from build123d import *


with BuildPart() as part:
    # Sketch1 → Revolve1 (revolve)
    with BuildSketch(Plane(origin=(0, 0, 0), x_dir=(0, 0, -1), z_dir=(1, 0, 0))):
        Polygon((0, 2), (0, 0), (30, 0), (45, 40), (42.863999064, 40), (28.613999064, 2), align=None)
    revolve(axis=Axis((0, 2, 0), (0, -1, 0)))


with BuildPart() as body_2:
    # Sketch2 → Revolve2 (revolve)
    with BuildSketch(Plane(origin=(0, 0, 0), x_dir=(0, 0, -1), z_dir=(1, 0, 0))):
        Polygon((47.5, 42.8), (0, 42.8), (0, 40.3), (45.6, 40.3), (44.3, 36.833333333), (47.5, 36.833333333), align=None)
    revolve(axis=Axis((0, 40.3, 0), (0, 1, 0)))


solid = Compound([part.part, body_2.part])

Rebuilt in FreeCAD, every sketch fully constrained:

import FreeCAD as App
import Part
import Sketcher
from FreeCAD import Vector
Q = App.Units.Quantity


def add_polygon(sketch, points):
    """Adds a closed chain of lines whose ends are joined by coincident constraints."""
    first, n = sketch.GeometryCount, len(points)
    for a, b in zip(points, points[1:] + points[:1]):
        sketch.addGeometry(Part.LineSegment(App.Vector(*a, 0), App.Vector(*b, 0)), False)
    for i in range(n):
        sketch.addConstraint(Sketcher.Constraint("Coincident", first + i, 2, first + (i + 1) % n, 1))

doc = App.newDocument("Part")
body = doc.addObject("PartDesign::Body", "Body")

# Sketch on YZ plane
sketch1 = body.newObject("Sketcher::SketchObject", "Sketch")
sketch1.AttachmentSupport = (doc.getObject("YZ_Plane"), [""])
sketch1.MapMode = "FlatFace"
add_polygon(sketch1, [(2, 0), (0, 0), (0, -30), (40, -45), (40, -42.863999), (2, -28.613999)])  # lines 0-5
sketch1.addConstraint([
    Sketcher.Constraint("Horizontal", 0),
    Sketcher.Constraint("Vertical", 1),
    Sketcher.Constraint("Vertical", 3),
    Sketcher.Constraint("Vertical", 5),
    Sketcher.Constraint("Coincident", 0, 2, -1, 1),
    Sketcher.Constraint("Parallel", 2, 4),
    Sketcher.Constraint("DistanceX", 0, 2, 0, 1, Q("2 mm")),
    Sketcher.Constraint("DistanceY", 1, 2, 1, 1, Q("30 mm")),
    Sketcher.Constraint("DistanceX", -1, 1, 2, 2, Q("40 mm")),
    Sketcher.Constraint("DistanceY", 2, 2, -1, 1, Q("45 mm")),
    Sketcher.Constraint("DistanceY", 3, 1, 3, 2, Q("2.136001 mm")),
])
revolution = body.newObject("PartDesign::Revolution", "Revolution")
revolution.Profile = sketch1
revolution.ReferenceAxis = (sketch1, ["H_Axis"])
revolution.Angle = 360
body2 = doc.addObject("PartDesign::Body", "Body001")

# Sketch on YZ plane
sketch2 = body2.newObject("Sketcher::SketchObject", "Sketch001")
sketch2.AttachmentSupport = (doc.getObject("YZ_Plane001"), [""])
sketch2.MapMode = "FlatFace"
add_polygon(sketch2, [(42.8, -47.5), (42.8, 0), (40.3, 0), (40.3, -45.6), (36.833333, -44.3), (36.833333, -47.5)])  # lines 0-5
sketch2.addConstraint([
    Sketcher.Constraint("Vertical", 0),
    Sketcher.Constraint("Horizontal", 1),
    Sketcher.Constraint("Vertical", 2),
    Sketcher.Constraint("Vertical", 4),
    Sketcher.Constraint("Horizontal", 5),
    Sketcher.Constraint("PointOnObject", 0, 2, -1),
    Sketcher.Constraint("DistanceX", 1, 2, 1, 1, Q("2.5 mm")),
    Sketcher.Constraint("DistanceY", 0, 1, 0, 2, Q("47.5 mm")),
    Sketcher.Constraint("DistanceY", 2, 2, 2, 1, Q("45.6 mm")),
    Sketcher.Constraint("DistanceY", 4, 2, 4, 1, Q("3.2 mm")),
    Sketcher.Constraint("DistanceX", -1, 1, 0, 2, Q("42.8 mm")),
    Sketcher.Constraint("Distance", 3, Q("3.702402 mm")),
])
revolution2 = body2.newObject("PartDesign::Revolution", "Revolution001")
revolution2.Profile = sketch2
revolution2.ReferenceAxis = (sketch2, ["H_Axis"])
revolution2.Angle = 360

doc.recompute()
